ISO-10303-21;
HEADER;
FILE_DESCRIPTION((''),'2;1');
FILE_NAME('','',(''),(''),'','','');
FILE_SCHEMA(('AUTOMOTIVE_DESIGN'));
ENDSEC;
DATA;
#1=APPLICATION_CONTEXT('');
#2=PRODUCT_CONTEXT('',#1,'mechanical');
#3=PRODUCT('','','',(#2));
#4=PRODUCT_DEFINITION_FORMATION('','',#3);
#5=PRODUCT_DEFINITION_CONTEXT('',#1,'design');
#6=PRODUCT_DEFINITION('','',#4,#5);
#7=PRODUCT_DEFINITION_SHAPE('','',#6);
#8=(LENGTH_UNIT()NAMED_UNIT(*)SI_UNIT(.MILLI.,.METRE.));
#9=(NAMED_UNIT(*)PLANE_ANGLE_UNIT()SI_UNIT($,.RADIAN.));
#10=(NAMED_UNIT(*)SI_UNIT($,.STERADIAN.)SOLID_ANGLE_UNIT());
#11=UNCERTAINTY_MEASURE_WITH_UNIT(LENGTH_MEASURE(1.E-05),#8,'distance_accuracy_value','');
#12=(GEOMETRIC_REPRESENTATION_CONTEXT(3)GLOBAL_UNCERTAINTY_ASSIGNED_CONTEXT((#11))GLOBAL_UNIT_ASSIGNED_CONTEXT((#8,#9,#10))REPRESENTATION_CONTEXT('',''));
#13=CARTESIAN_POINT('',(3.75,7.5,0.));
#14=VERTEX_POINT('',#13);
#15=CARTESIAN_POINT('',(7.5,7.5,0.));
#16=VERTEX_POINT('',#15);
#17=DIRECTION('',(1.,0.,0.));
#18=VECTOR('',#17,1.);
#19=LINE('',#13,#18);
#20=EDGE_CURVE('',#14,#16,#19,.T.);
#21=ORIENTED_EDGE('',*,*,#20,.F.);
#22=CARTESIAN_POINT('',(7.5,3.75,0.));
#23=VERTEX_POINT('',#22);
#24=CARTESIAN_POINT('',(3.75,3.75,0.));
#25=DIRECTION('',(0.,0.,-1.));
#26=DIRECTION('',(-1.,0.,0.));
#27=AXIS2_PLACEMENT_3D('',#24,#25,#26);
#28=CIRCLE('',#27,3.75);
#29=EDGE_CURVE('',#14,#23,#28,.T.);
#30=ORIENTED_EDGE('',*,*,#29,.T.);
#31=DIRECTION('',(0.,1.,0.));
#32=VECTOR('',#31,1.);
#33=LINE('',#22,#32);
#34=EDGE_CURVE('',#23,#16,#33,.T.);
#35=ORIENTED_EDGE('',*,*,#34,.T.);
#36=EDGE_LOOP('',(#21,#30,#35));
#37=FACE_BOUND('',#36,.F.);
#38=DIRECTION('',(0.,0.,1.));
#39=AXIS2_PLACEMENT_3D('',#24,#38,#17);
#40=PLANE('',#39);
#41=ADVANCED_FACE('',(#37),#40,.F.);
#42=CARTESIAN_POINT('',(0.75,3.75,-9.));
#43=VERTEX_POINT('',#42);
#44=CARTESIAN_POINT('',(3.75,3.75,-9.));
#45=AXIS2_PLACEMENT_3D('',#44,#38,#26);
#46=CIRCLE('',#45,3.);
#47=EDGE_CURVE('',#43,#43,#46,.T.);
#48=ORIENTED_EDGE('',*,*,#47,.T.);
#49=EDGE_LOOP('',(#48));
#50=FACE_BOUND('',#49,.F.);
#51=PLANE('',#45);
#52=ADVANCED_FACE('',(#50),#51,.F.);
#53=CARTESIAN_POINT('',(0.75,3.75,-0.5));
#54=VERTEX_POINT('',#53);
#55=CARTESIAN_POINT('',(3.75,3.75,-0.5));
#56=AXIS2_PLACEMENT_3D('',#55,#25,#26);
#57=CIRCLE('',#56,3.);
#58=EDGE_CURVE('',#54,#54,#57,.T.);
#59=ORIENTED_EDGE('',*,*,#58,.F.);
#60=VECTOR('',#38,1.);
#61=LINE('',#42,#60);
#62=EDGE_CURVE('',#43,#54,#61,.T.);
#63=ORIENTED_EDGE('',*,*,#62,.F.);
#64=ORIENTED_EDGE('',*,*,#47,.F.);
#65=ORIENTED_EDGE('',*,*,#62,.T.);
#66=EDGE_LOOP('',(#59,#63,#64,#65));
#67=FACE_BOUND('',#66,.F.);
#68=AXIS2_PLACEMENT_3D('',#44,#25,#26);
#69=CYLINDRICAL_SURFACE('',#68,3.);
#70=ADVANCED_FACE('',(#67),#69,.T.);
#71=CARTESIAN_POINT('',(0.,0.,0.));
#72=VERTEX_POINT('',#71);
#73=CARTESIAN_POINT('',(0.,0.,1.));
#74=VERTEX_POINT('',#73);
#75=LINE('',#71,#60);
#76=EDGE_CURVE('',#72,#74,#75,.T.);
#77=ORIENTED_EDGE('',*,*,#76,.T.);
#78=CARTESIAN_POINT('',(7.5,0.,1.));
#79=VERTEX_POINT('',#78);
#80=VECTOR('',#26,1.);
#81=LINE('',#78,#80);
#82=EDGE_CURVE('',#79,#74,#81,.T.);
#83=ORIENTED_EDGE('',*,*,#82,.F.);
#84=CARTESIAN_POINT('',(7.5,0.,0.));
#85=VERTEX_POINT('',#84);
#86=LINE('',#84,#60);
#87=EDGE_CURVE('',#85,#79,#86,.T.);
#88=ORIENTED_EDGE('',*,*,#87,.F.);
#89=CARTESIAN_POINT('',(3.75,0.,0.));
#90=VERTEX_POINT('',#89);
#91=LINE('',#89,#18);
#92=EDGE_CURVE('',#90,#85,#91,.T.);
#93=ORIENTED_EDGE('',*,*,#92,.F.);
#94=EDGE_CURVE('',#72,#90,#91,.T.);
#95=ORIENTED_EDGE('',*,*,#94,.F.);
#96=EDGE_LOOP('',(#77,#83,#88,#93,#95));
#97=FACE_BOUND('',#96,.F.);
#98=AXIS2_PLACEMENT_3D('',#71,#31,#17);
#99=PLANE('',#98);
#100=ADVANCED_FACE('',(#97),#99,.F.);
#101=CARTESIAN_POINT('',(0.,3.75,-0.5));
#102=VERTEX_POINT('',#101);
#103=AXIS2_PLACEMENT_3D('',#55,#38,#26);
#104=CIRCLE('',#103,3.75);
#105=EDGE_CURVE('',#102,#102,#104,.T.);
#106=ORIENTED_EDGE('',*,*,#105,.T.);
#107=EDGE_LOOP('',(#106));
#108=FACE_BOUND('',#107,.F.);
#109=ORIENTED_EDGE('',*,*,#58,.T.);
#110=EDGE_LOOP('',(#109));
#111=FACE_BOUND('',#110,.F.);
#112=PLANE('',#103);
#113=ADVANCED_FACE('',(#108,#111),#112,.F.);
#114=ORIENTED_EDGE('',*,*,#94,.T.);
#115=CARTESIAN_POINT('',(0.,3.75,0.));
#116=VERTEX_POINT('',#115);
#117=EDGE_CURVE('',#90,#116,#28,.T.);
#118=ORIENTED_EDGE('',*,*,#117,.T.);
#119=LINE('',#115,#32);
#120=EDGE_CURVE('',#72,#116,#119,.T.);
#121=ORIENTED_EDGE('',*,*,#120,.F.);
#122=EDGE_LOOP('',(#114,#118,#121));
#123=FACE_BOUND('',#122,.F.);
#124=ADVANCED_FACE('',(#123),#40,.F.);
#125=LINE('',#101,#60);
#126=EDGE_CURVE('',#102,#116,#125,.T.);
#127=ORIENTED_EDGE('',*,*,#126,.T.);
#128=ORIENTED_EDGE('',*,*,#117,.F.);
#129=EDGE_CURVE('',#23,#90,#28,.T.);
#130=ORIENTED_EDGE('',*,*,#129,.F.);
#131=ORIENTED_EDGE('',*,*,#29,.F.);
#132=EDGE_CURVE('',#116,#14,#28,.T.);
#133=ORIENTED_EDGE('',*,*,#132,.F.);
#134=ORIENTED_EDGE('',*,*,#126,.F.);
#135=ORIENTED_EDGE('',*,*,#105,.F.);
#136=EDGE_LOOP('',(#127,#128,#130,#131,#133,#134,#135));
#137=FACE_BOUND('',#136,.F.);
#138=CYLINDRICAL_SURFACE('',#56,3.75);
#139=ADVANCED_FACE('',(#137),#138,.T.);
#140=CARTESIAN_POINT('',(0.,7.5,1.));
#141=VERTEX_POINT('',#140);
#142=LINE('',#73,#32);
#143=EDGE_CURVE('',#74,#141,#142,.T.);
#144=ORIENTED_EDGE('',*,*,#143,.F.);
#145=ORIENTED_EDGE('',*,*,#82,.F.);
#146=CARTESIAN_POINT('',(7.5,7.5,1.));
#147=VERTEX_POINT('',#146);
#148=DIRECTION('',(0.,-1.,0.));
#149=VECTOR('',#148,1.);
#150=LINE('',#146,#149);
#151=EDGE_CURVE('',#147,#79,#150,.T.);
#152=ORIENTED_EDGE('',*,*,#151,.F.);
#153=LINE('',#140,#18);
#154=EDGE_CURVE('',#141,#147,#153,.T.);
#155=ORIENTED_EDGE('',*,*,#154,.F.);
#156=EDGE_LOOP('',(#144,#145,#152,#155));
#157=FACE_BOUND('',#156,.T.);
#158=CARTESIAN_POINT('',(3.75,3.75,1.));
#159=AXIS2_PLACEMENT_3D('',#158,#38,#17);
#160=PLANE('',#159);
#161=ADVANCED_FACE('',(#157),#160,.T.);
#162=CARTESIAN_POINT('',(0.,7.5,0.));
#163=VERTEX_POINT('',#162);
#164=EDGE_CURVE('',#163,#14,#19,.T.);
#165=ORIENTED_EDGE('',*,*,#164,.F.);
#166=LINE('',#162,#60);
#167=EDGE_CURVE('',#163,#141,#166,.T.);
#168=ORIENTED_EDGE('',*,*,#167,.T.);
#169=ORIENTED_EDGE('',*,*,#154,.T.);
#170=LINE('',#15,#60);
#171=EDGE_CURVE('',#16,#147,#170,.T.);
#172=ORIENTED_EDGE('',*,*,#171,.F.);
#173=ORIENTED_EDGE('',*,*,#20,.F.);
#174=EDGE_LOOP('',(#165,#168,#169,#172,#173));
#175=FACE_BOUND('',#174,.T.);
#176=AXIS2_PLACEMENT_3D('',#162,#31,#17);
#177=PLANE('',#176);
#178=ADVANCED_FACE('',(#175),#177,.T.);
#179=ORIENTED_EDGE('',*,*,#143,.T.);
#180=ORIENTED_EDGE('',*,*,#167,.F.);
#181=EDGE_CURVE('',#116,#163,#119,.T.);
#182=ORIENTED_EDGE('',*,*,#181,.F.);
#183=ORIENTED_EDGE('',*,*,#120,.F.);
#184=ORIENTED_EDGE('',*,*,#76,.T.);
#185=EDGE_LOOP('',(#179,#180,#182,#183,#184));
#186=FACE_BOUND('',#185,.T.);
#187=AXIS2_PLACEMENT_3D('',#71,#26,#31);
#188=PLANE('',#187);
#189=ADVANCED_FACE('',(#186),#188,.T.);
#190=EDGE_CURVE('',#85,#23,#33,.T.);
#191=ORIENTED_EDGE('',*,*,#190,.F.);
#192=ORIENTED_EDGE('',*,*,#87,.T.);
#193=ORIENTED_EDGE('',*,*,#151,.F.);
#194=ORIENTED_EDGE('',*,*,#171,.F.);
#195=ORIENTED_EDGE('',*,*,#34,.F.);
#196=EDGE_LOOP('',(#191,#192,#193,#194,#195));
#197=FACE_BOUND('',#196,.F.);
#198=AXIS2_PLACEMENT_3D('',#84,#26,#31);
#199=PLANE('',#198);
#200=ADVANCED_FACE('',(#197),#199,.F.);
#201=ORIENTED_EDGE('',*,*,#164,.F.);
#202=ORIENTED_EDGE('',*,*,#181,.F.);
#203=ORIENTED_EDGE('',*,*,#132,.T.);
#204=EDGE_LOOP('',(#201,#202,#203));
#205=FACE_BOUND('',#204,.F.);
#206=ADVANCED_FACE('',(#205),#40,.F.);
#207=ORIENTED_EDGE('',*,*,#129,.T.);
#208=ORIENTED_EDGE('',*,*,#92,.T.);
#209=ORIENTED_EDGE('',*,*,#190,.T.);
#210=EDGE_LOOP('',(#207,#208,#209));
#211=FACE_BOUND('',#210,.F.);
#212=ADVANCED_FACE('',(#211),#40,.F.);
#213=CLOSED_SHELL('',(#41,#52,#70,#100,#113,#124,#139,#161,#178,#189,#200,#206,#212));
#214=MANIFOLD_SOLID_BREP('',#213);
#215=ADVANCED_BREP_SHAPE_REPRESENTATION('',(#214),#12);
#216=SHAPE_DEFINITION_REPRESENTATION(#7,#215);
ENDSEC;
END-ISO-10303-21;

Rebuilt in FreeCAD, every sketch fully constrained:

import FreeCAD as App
import Part
import Sketcher

V = App.Vector
Q = App.Units.Quantity


def add_polygon(sketch, points):
    """Adds a closed chain of lines whose ends are joined by coincident constraints."""
    first, n = sketch.GeometryCount, len(points)
    for a, b in zip(points, points[1:] + points[:1]):
        sketch.addGeometry(Part.LineSegment(App.Vector(*a, 0), App.Vector(*b, 0)), False)
    for i in range(n):
        sketch.addConstraint(Sketcher.Constraint("Coincident", first + i, 2, first + (i + 1) % n, 1))

doc = App.newDocument("Part")
body = doc.addObject("PartDesign::Body", "Body")

# Sketch on XY plane
sketch1 = doc.addObject("Sketcher::SketchObject", "Sketch")
body.addObject(sketch1)
sketch1.AttachmentSupport = (doc.XY_Plane, [""])
sketch1.MapMode = "FlatFace"
sketch1.AttachmentOffset = App.Placement(V(0, 0, 1), App.Rotation())
sketch1.addGeometry(Part.Circle(V(3.8, 3.8, 0), V(0, 0, 1), 3.8), False)
sketch1.addConstraint([
    Sketcher.Constraint("Diameter", 0, Q("7.5 mm")),
    Sketcher.Constraint("DistanceX", -1, 1, 0, 3, Q("3.75 mm")),
    Sketcher.Constraint("DistanceY", -1, 1, 0, 3, Q("3.75 mm")),
])
pad1 = doc.addObject("PartDesign::Pad", "Pad")
body.addObject(pad1)
pad1.Profile = sketch1
pad1.Length = 1.5
body2 = doc.addObject("PartDesign::Body", "Body001")
doc.recompute()

body.Placement = App.Placement(V(0, 0, -1.5), App.Rotation(V(0, 0, 1), 0))
boolean = doc.addObject("PartDesign::Boolean", "Boolean")
body2.addObject(boolean)
boolean.Type = "Fuse"
boolean.addObjects([body])
body3 = doc.addObject("PartDesign::Body", "Body002")

# Sketch on XY plane
sketch2 = doc.addObject("Sketcher::SketchObject", "Sketch001")
body3.addObject(sketch2)
sketch2.AttachmentSupport = (doc.getObject("XY_Plane002"), [""])
sketch2.MapMode = "FlatFace"
sketch2.AttachmentOffset = App.Placement(V(0, 0, 1), App.Rotation())
sketch2.addGeometry(Part.Circle(V(3.8, 3.8, 0), V(0, 0, 1), 3), False)
sketch2.addConstraint([
    Sketcher.Constraint("Diameter", 0, Q("6 mm")),
    Sketcher.Constraint("DistanceX", -1, 1, 0, 3, Q("3.75 mm")),
    Sketcher.Constraint("DistanceY", -1, 1, 0, 3, Q("3.75 mm")),
])
pad2 = doc.addObject("PartDesign::Pad", "Pad001")
body3.addObject(pad2)
pad2.Profile = sketch2
pad2.Length = 10
body4 = doc.addObject("PartDesign::Body", "Body003")
doc.recompute()

body3.Placement = App.Placement(V(0, 0, -10), App.Rotation(V(0, 0, 1), 0))
boolean2 = doc.addObject("PartDesign::Boolean", "Boolean001")
body4.addObject(boolean2)
boolean2.Type = "Fuse"
boolean2.addObjects([body3])
doc.recompute()

boolean3 = doc.addObject("PartDesign::Boolean", "Boolean002")
body4.addObject(boolean3)
boolean3.Type = "Fuse"
boolean3.addObjects([body2])
body5 = doc.addObject("PartDesign::Body", "Body004")

# Sketch on XY plane
sketch3 = doc.addObject("Sketcher::SketchObject", "Sketch002")
body5.addObject(sketch3)
sketch3.AttachmentSupport = (doc.getObject("XY_Plane004"), [""])
sketch3.MapMode = "FlatFace"
add_polygon(sketch3, [(0, 8), (0, 0), (8, 0), (8, 8)])  # lines 0-3
sketch3.addConstraint([
    Sketcher.Constraint("Vertical", 0),
    Sketcher.Constraint("Horizontal", 1),
    Sketcher.Constraint("Vertical", 2),
    Sketcher.Constraint("Horizontal", 3),
    Sketcher.Constraint("Coincident", 0, 2, -1, 1),
    Sketcher.Constraint("Equal", 3, 0),
    Sketcher.Constraint("DistanceX", 1, 1, 1, 2, Q("7.5 mm")),
])
pad3 = doc.addObject("PartDesign::Pad", "Pad002")
body5.addObject(pad3)
pad3.Profile = sketch3
pad3.Length = 1
doc.recompute()

boolean4 = doc.addObject("PartDesign::Boolean", "Boolean003")
body5.addObject(boolean4)
boolean4.Type = "Fuse"
boolean4.addObjects([body4])

doc.recompute()
